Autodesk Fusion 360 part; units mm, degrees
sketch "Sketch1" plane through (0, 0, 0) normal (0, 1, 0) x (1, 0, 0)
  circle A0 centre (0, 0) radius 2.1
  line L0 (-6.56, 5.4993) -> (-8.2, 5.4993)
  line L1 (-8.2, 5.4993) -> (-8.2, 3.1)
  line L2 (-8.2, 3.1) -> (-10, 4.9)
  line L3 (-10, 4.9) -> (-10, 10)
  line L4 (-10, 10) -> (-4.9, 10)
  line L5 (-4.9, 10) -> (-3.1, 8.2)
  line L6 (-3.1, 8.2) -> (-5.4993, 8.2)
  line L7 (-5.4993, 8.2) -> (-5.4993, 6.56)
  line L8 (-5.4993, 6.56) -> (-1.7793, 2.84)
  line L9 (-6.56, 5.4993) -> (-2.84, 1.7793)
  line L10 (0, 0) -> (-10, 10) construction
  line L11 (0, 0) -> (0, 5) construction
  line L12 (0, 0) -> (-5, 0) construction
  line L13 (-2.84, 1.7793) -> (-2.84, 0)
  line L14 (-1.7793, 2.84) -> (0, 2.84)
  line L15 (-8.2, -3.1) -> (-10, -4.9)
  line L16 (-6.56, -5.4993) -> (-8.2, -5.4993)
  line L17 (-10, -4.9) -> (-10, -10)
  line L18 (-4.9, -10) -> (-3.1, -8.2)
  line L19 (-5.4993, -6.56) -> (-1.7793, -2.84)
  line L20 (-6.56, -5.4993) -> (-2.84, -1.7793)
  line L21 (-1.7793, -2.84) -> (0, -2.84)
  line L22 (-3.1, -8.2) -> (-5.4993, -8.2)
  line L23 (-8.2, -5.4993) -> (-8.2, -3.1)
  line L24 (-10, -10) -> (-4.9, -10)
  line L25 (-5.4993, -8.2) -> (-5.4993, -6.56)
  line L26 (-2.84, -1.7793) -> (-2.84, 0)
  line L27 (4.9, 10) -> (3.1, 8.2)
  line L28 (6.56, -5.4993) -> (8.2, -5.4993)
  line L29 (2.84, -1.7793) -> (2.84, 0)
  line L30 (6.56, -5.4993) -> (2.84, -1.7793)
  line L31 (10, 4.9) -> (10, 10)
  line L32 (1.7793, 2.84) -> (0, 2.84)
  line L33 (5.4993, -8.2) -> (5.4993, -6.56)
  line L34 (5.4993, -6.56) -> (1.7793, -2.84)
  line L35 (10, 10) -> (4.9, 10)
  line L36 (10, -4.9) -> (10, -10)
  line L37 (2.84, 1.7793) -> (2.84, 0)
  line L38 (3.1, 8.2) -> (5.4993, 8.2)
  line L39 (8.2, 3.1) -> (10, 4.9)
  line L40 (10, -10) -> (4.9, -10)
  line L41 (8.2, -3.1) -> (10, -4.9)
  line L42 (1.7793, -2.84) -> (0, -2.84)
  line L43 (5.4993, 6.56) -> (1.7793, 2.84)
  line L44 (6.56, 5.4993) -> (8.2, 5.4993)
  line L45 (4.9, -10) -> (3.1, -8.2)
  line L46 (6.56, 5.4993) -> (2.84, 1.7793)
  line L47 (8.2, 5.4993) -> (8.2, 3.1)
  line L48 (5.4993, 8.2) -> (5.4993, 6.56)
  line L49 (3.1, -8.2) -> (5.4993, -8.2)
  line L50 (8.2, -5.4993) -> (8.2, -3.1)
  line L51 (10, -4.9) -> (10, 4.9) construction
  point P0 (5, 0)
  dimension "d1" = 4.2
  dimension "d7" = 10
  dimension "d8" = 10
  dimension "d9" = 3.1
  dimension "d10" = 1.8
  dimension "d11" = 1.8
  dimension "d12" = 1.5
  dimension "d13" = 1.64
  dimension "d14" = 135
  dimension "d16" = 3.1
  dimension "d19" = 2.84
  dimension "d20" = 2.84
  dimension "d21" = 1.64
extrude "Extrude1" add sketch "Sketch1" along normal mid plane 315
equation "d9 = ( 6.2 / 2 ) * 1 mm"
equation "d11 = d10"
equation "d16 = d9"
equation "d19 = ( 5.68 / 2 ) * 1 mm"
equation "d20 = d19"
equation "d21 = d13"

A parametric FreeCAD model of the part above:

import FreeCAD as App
import Part
import Sketcher
from FreeCAD import Vector
Q = App.Units.Quantity


def add_polygon(sketch, points):
    """Adds a closed chain of lines whose ends are joined by coincident constraints."""
    first, n = sketch.GeometryCount, len(points)
    for a, b in zip(points, points[1:] + points[:1]):
        sketch.addGeometry(Part.LineSegment(App.Vector(*a, 0), App.Vector(*b, 0)), False)
    for i in range(n):
        sketch.addConstraint(Sketcher.Constraint("Coincident", first + i, 2, first + (i + 1) % n, 1))

doc = App.newDocument("Part")
body = doc.addObject("PartDesign::Body", "Body")

sketch1 = body.newObject("Sketcher::SketchObject", "Sketch")
sketch1.AttachmentSupport = (doc.getObject("XZ_Plane"), [""])
sketch1.MapMode = "FlatFace"
add_polygon(sketch1, [(-8.2, -5.5), (-6.6, -5.5), (-2.8, -1.8), (-2.8, 1.8), (-6.6, 5.5), (-8.2, 5.5), (-8.2, 3.1), (-10, 4.9), (-10, 10), (-4.9, 10), (-3.1, 8.2), (-5.5, 8.2), (-5.5, 6.6), (-1.8, 2.8), (1.8, 2.8), (5.5, 6.6), (5.5, 8.2), (3.1, 8.2), (4.9, 10), (10, 10), (10, 4.9), (8.2, 3.1), (8.2, 5.5), (6.6, 5.5), (2.8, 1.8), (2.8, -1.8), (6.6, -5.5), (8.2, -5.5), (8.2, -3.1), (10, -4.9), (10, -10), (4.9, -10), (3.1, -8.2), (5.5, -8.2), (5.5, -6.6), (1.8, -2.8), (-1.8, -2.8), (-5.5, -6.6), (-5.5, -8.2), (-3.1, -8.2), (-4.9, -10), (-10, -10), (-10, -4.9), (-8.2, -3.1)])
sketch1.addGeometry(Part.Circle(Vector(0, 0, 0), Vector(0, 0, 1), 2.1), False)
sketch1.addConstraint(Sketcher.Constraint("Horizontal", 0))
sketch1.addConstraint(Sketcher.Constraint("Vertical", 2))
sketch1.addConstraint(Sketcher.Constraint("Horizontal", 4))
sketch1.addConstraint(Sketcher.Constraint("Vertical", 5))
sketch1.addConstraint(Sketcher.Constraint("Vertical", 7))
sketch1.addConstraint(Sketcher.Constraint("Horizontal", 8))
sketch1.addConstraint(Sketcher.Constraint("Horizontal", 10))
sketch1.addConstraint(Sketcher.Constraint("Vertical", 11))
sketch1.addConstraint(Sketcher.Constraint("Horizontal", 13))
sketch1.addConstraint(Sketcher.Constraint("Vertical", 15))
sketch1.addConstraint(Sketcher.Constraint("Horizontal", 16))
sketch1.addConstraint(Sketcher.Constraint("Horizontal", 18))
sketch1.addConstraint(Sketcher.Constraint("Vertical", 19))
sketch1.addConstraint(Sketcher.Constraint("Vertical", 21))
sketch1.addConstraint(Sketcher.Constraint("Horizontal", 22))
sketch1.addConstraint(Sketcher.Constraint("Vertical", 24))
sketch1.addConstraint(Sketcher.Constraint("Horizontal", 26))
sketch1.addConstraint(Sketcher.Constraint("Vertical", 27))
sketch1.addConstraint(Sketcher.Constraint("Vertical", 29))
sketch1.addConstraint(Sketcher.Constraint("Horizontal", 30))
sketch1.addConstraint(Sketcher.Constraint("Horizontal", 32))
sketch1.addConstraint(Sketcher.Constraint("Vertical", 33))
sketch1.addConstraint(Sketcher.Constraint("Horizontal", 35))
sketch1.addConstraint(Sketcher.Constraint("Vertical", 37))
sketch1.addConstraint(Sketcher.Constraint("Horizontal", 38))
sketch1.addConstraint(Sketcher.Constraint("Horizontal", 40))
sketch1.addConstraint(Sketcher.Constraint("Vertical", 41))
sketch1.addConstraint(Sketcher.Constraint("Vertical", 43))
sketch1.addConstraint(Sketcher.Constraint("Coincident", 44, 3, -1, 1))
sketch1.addConstraint(Sketcher.Constraint("Symmetric", 0, 2, 22, 2, -1, 1))
sketch1.addConstraint(Sketcher.Constraint("Symmetric", 1, 2, 23, 2, -1, 1))
sketch1.addConstraint(Sketcher.Constraint("Symmetric", 3, 2, 25, 2, -1, 1))
sketch1.addConstraint(Sketcher.Constraint("Symmetric", 5, 2, 27, 2, -1, 1))
sketch1.addConstraint(Sketcher.Constraint("Symmetric", 6, 2, 28, 2, -1, 1))
sketch1.addConstraint(Sketcher.Constraint("Symmetric", 8, 2, 30, 2, -1, 1))
sketch1.addConstraint(Sketcher.Constraint("Symmetric", 9, 2, 31, 2, -1, 1))
sketch1.addConstraint(Sketcher.Constraint("Symmetric", 11, 2, 33, 2, -1, 1))
sketch1.addConstraint(Sketcher.Constraint("Symmetric", 12, 2, 34, 2, -1, 1))
sketch1.addConstraint(Sketcher.Constraint("Symmetric", 14, 2, 36, 2, -1, 1))
sketch1.addConstraint(Sketcher.Constraint("Symmetric", 16, 2, 38, 2, -1, 1))
sketch1.addConstraint(Sketcher.Constraint("Symmetric", 17, 2, 39, 2, -1, 1))
sketch1.addConstraint(Sketcher.Constraint("Symmetric", 19, 2, 41, 2, -1, 1))
sketch1.addConstraint(Sketcher.Constraint("Symmetric", 20, 2, 42, 2, -1, 1))
sketch1.addConstraint(Sketcher.Constraint("Symmetric", 11, 2, 14, 2, -2))
sketch1.addConstraint(Sketcher.Constraint("Symmetric", 9, 2, 16, 2, -2))
sketch1.addConstraint(Sketcher.Constraint("Symmetric", 8, 2, 17, 2, -2))
sketch1.addConstraint(Sketcher.Constraint("Symmetric", 6, 2, 19, 2, -2))
sketch1.addConstraint(Sketcher.Constraint("Symmetric", 5, 2, 20, 2, -2))
sketch1.addConstraint(Sketcher.Constraint("Symmetric", 3, 2, 22, 2, -2))
sketch1.addConstraint(Sketcher.Constraint("Perpendicular", 1, 3))
sketch1.addConstraint(Sketcher.Constraint("Parallel", 3, 6))
sketch1.addConstraint(Sketcher.Constraint("Parallel", 6, 9))
sketch1.addConstraint(Sketcher.Constraint("Parallel", 9, 12))
sketch1.addConstraint(Sketcher.Constraint("Perpendicular", 12, 14))
sketch1.addConstraint(Sketcher.Constraint("Parallel", 14, 17))
sketch1.addConstraint(Sketcher.Constraint("Perpendicular", 23, 25))
sketch1.addConstraint(Sketcher.Constraint("Perpendicular", 34, 36))
sketch1.addConstraint(Sketcher.Constraint("Equal", 35, 2))
sketch1.addConstraint(Sketcher.Constraint("Equal", 38, 5))
sketch1.addConstraint(Sketcher.Constraint("Equal", 40, 7))
sketch1.addConstraint(Sketcher.Constraint("Equal", 26, 11))
sketch1.addConstraint(Sketcher.Constraint("Equal", 6, 9))
sketch1.addConstraint(Sketcher.Constraint("Equal", 3, 12))
sketch1.addConstraint(Sketcher.Constraint("Diameter", 44, Q("4.2 mm")))
sketch1.addConstraint(Sketcher.Constraint("DistanceX", 6, 2, -1, 1, Q("10 mm")))
sketch1.addConstraint(Sketcher.Constraint("DistanceX", 0, 1, 0, 2, Q("1.64 mm")))
sketch1.addConstraint(Sketcher.Constraint("DistanceY", -1, 1, 5, 2, Q("3.1 mm")))
sketch1.addConstraint(Sketcher.Constraint("DistanceX", 6, 2, 4, 2, Q("1.8 mm")))
sketch1.addConstraint(Sketcher.Constraint("DistanceX", 1, 2, -1, 1, Q("2.84 mm")))
sketch1.addConstraint(Sketcher.Constraint("DistanceX", 10, 2, 10, 1, Q("2.3993 mm")))
pad1 = body.newObject("PartDesign::Pad", "Pad")
pad1.Profile = sketch1
pad1.Length = 315
pad1.Midplane = True

doc.recompute()
